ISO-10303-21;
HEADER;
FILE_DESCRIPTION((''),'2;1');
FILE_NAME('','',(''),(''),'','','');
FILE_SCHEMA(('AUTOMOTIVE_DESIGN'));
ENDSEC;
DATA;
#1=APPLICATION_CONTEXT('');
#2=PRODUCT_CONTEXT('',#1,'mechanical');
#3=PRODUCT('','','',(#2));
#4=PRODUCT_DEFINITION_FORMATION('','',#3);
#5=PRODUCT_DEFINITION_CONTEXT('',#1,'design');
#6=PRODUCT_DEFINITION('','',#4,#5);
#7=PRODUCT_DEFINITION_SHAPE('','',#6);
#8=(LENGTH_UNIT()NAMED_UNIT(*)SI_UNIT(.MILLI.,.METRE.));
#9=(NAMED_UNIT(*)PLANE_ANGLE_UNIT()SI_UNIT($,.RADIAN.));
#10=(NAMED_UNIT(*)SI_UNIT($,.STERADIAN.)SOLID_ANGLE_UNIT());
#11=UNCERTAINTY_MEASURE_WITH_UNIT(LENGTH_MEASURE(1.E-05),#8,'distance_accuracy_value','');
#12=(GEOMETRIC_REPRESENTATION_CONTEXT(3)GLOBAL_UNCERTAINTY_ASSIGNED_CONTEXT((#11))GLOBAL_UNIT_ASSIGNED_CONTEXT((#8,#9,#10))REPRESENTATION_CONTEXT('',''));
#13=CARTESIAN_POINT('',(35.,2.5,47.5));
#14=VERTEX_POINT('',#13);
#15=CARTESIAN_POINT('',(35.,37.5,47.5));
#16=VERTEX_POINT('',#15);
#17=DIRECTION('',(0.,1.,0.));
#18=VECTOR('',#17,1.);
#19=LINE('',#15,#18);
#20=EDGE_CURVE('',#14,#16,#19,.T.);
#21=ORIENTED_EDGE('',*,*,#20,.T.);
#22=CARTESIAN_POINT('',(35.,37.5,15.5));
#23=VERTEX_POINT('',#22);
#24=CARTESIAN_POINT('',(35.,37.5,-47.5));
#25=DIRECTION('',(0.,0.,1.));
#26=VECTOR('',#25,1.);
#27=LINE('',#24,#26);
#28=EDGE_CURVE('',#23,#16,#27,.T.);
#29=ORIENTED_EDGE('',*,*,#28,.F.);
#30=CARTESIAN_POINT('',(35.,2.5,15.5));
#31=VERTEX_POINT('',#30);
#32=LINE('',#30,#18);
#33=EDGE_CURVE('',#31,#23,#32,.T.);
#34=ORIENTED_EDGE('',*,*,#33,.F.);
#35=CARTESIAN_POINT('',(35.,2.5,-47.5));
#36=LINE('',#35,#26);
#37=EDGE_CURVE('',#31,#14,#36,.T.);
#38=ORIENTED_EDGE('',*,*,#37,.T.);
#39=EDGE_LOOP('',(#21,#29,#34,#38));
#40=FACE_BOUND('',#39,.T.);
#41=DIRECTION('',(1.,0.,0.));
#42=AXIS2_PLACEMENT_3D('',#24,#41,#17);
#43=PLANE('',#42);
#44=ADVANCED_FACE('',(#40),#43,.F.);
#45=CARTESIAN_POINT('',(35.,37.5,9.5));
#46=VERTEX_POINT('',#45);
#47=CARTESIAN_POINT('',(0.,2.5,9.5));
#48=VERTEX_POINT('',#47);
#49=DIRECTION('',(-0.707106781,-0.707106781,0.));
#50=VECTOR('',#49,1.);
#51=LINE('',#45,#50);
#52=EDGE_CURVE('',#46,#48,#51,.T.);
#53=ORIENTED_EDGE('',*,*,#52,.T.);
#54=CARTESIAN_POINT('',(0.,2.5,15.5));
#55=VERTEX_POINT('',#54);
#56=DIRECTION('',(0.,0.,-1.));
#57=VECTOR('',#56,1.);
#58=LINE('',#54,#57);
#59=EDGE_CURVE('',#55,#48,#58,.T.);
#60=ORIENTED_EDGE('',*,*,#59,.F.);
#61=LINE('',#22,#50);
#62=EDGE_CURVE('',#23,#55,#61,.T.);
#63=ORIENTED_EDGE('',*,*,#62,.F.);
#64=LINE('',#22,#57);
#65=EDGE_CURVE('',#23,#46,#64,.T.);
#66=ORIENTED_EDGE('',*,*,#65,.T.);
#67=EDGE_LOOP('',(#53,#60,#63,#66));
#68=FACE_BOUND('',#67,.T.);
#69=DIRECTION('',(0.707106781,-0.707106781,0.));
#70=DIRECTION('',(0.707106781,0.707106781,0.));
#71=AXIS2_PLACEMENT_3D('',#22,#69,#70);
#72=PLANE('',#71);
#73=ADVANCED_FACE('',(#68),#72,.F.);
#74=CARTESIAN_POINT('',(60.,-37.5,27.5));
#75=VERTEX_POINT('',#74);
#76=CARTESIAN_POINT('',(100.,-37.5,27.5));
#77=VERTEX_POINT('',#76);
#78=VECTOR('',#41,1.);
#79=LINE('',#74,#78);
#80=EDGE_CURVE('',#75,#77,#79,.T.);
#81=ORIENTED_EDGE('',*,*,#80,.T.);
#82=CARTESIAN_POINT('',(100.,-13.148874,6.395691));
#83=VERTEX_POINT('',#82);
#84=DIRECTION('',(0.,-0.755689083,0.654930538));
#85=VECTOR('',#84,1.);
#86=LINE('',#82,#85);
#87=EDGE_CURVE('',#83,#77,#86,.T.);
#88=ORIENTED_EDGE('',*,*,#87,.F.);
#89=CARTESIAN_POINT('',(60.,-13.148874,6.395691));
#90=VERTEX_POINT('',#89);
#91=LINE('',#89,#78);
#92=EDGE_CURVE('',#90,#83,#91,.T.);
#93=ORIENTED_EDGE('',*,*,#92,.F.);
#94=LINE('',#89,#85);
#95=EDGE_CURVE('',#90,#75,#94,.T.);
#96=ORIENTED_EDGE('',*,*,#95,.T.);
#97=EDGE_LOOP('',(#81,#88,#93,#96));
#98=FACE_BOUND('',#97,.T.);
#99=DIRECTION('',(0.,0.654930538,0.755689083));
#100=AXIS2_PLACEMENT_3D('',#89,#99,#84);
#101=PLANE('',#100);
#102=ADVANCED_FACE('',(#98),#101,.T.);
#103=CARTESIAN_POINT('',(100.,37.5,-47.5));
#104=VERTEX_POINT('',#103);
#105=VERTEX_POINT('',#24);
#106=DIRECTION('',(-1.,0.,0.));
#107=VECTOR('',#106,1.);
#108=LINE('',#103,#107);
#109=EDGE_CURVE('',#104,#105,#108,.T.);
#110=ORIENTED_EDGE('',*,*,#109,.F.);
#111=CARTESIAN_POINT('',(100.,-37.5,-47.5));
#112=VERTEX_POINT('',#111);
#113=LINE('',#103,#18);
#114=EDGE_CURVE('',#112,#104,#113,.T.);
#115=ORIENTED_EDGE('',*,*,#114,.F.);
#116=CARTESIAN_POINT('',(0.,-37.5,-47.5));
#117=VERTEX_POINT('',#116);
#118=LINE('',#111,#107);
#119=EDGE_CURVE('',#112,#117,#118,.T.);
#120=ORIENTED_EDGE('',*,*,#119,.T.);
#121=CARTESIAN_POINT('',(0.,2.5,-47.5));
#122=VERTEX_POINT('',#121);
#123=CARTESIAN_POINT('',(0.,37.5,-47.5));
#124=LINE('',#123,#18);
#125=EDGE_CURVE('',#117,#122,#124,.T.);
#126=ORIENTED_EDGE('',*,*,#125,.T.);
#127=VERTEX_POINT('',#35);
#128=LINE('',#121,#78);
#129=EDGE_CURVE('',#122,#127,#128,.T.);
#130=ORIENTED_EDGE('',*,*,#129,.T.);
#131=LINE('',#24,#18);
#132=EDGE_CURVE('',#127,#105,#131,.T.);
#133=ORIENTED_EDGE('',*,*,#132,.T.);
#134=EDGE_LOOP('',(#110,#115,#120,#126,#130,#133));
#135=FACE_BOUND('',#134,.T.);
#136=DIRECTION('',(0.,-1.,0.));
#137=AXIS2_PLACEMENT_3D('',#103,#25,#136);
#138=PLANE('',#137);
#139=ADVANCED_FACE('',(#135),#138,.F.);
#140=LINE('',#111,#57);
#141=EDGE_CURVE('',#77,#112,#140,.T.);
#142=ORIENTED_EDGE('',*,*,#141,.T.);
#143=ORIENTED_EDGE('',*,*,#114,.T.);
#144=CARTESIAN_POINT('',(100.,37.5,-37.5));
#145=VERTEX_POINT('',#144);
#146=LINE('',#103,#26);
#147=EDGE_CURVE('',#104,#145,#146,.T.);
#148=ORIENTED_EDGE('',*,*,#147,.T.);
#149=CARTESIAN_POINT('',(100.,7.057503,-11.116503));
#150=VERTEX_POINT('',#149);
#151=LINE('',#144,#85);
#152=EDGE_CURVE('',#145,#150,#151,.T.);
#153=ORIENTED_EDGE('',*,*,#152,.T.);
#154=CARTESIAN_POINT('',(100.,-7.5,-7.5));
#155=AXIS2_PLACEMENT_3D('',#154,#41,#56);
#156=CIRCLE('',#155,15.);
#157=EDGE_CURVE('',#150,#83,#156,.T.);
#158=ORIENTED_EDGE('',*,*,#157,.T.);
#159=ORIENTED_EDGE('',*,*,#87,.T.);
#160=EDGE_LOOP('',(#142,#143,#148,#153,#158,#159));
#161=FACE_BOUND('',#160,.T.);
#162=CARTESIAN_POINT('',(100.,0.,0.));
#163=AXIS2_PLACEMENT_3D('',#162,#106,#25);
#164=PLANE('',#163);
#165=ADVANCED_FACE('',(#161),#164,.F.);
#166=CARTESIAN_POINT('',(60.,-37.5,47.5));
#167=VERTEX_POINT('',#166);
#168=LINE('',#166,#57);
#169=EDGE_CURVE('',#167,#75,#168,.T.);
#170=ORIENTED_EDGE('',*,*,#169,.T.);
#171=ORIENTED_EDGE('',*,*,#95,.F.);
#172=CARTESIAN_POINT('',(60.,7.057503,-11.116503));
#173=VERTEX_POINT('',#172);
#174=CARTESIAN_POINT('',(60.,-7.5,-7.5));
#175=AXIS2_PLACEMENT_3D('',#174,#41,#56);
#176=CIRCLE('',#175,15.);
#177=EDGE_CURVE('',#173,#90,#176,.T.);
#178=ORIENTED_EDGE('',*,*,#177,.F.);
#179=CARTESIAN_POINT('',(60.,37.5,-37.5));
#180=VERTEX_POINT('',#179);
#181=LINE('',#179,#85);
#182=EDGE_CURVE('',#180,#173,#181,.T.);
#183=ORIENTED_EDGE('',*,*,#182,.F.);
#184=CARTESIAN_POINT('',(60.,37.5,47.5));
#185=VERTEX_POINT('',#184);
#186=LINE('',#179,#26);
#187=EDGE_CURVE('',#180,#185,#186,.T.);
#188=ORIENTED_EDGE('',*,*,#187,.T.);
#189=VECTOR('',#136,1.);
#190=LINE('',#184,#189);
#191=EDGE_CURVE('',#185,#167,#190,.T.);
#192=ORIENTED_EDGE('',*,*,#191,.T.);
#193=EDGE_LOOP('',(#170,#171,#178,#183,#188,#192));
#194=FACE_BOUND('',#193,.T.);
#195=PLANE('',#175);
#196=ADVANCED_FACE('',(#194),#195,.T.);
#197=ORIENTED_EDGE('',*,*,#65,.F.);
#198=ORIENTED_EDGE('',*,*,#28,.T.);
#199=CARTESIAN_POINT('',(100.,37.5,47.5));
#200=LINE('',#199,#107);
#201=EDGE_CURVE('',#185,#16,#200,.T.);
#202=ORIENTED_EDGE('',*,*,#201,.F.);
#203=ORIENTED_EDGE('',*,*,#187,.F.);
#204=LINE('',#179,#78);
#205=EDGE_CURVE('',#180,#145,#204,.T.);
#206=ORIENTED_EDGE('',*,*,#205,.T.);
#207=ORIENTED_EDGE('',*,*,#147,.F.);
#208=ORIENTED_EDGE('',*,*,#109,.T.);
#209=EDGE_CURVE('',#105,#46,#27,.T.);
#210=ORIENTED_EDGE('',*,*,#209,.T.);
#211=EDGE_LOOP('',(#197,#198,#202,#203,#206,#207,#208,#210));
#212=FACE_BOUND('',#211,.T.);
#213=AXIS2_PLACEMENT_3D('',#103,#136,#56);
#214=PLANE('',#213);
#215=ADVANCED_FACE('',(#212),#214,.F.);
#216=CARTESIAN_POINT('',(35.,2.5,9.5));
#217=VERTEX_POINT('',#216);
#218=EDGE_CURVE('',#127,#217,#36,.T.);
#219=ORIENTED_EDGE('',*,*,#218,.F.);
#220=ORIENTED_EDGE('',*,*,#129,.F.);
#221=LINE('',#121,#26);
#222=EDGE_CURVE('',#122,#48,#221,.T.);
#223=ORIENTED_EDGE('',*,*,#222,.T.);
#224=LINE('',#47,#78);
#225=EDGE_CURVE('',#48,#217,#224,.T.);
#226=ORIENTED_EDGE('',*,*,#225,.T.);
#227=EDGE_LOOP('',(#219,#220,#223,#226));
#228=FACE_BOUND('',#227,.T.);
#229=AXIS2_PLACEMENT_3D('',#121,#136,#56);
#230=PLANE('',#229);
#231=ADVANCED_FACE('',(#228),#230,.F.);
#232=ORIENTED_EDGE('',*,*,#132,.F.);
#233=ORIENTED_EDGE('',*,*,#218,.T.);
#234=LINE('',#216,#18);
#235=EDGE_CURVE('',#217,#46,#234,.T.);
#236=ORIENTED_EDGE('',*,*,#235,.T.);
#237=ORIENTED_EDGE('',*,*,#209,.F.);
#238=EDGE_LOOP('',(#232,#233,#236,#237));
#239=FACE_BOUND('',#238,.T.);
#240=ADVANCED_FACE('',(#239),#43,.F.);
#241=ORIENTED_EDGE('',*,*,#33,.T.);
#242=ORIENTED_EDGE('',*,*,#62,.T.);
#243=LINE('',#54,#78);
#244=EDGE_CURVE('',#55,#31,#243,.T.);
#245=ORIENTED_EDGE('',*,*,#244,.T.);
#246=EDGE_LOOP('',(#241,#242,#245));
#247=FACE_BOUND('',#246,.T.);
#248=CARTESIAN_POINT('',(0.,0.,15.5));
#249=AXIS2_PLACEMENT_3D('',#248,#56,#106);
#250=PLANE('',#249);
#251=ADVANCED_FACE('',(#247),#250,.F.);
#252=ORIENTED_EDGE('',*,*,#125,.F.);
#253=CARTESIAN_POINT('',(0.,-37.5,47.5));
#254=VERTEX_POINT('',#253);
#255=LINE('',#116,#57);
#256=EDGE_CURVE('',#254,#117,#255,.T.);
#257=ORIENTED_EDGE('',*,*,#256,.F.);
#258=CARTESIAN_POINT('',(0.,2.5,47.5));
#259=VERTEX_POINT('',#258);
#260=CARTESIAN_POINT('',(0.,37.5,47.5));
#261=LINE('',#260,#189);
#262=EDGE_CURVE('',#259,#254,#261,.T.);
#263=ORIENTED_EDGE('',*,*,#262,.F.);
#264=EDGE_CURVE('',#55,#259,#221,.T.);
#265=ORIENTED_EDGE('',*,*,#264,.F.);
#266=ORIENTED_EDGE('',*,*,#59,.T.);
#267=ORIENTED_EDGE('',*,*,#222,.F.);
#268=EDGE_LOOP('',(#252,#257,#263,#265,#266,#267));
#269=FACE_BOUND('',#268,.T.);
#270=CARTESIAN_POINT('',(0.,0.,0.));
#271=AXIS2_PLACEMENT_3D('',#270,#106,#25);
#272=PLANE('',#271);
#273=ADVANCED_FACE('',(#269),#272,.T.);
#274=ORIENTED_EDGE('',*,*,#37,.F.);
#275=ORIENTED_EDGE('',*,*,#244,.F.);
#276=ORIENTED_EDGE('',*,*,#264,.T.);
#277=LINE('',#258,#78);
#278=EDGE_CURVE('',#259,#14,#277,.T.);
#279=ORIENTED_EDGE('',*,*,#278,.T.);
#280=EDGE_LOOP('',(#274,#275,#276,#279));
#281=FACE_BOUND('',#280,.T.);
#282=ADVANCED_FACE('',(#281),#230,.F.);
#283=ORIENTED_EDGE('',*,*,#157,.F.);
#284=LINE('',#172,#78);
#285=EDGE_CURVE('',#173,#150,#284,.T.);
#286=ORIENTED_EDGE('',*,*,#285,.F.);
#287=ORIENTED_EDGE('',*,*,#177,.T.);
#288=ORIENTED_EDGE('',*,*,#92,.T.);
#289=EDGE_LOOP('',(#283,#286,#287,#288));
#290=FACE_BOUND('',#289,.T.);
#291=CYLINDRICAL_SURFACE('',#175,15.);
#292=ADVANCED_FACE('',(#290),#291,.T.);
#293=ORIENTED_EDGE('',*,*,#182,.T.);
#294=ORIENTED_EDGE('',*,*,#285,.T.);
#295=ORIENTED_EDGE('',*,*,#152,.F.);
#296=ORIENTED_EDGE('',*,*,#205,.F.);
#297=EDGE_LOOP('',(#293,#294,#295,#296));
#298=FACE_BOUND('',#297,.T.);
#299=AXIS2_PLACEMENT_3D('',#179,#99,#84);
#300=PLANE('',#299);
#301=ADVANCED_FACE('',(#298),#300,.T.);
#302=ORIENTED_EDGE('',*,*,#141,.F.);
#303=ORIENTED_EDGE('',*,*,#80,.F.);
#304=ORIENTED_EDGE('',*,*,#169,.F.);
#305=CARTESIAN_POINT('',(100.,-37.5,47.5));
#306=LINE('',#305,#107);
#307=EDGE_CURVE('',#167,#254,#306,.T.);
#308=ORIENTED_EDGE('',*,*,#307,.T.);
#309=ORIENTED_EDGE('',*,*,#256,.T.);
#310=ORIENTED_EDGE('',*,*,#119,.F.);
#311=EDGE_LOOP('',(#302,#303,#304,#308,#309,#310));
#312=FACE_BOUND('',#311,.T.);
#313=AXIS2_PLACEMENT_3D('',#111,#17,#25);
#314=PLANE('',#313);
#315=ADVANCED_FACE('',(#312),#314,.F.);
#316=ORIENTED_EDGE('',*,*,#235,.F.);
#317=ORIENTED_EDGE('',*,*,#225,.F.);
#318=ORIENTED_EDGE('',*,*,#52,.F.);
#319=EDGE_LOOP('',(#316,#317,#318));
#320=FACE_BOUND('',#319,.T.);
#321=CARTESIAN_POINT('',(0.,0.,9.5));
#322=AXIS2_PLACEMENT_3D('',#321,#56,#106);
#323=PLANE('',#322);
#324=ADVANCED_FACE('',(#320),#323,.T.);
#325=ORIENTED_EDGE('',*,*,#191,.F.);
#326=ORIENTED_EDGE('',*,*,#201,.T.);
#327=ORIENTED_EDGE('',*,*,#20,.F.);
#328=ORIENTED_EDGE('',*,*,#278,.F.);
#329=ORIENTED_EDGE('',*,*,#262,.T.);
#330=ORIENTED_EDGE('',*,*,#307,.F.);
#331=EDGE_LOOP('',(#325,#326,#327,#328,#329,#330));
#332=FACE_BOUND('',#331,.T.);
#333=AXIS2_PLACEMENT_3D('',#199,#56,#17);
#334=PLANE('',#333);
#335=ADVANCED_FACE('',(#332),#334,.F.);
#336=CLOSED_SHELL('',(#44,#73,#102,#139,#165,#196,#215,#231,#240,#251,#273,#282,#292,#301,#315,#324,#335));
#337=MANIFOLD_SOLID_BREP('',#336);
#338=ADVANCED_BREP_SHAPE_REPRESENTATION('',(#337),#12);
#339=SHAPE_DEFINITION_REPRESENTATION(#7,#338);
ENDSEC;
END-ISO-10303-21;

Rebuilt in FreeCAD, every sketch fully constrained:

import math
import FreeCAD as App
import Part
import Sketcher

doc = App.newDocument("Part")
params = doc.addObject("Spreadsheet::Sheet", "Params")
for row, (alias, value) in enumerate([
    ("sketch1_width", "75 mm"),
    ("sketch1_height", "95 mm"),
    ("pad1_length", "100 mm"),
    ("sketch2_radius", "15 mm"),
    ("sketch2_width", "75 mm"),
    ("sketch2_height", "85 mm"),
    ("sketch2_height2", "20 mm"),
    ("pocket1_length", "40 mm"),
    ("sketch3_width", "35 mm"),
    ("sketch4_width", "35 mm"),
    ("pad2_length", "6 mm"),
], start=1):
    params.set(f"A{row}", alias)
    params.set(f"B{row}", "=" + value)
    params.setAlias(f"B{row}", alias)

body = doc.addObject("PartDesign::Body", "Body")

# Sketch on YZ plane
sketch1 = doc.addObject("Sketcher::SketchObject", "Sketch")
body.addObject(sketch1)
sketch1.AttachmentSupport = (doc.YZ_Plane, [""])
sketch1.MapMode = "FlatFace"
sketch1.addGeometry(Part.LineSegment(App.Vector(37.5, 47.5, 0), App.Vector(-37.5, 47.5, 0)), False)
sketch1.addGeometry(Part.LineSegment(App.Vector(-37.5, 47.5, 0), App.Vector(-37.5, -47.5, 0)), False)
sketch1.addGeometry(Part.LineSegment(App.Vector(-37.5, -47.5, 0), App.Vector(37.5, -47.5, 0)), False)
sketch1.addGeometry(Part.LineSegment(App.Vector(37.5, -47.5, 0), App.Vector(37.5, 47.5, 0)), False)
sketch1.addConstraint(Sketcher.Constraint("Coincident", 0, 2, 1, 1))
sketch1.addConstraint(Sketcher.Constraint("Coincident", 1, 2, 2, 1))
sketch1.addConstraint(Sketcher.Constraint("Coincident", 2, 2, 3, 1))
sketch1.addConstraint(Sketcher.Constraint("Coincident", 3, 2, 0, 1))
sketch1.addConstraint(Sketcher.Constraint("Horizontal", 0))
sketch1.addConstraint(Sketcher.Constraint("Vertical", 1))
sketch1.addConstraint(Sketcher.Constraint("Horizontal", 2))
sketch1.addConstraint(Sketcher.Constraint("Vertical", 3))
sketch1.addConstraint(Sketcher.Constraint("Symmetric", 0, 2, 2, 2, -1, 1))
sketch1.addConstraint(Sketcher.Constraint("DistanceX", 0, 2, 0, 1, 75.0))
sketch1.addConstraint(Sketcher.Constraint("DistanceY", 1, 2, 1, 1, 95.0))
sketch1.setExpression("Constraints[9]", "Params.sketch1_width")
sketch1.setExpression("Constraints[10]", "Params.sketch1_height")
pad1 = doc.addObject("PartDesign::Pad", "Pad")
body.addObject(pad1)
pad1.Profile = sketch1
pad1.setExpression("Length", "Params.pad1_length")

# Sketch on YZ plane
sketch2 = doc.addObject("Sketcher::SketchObject", "Sketch001")
body.addObject(sketch2)
sketch2.AttachmentSupport = (doc.YZ_Plane, [""])
sketch2.MapMode = "FlatFace"
sketch2.AttachmentOffset = App.Placement(App.Vector(0, 0, 100), App.Rotation())
sketch2.addGeometry(Part.LineSegment(App.Vector(7.057503, -11.116503, 0), App.Vector(37.5, -37.5, 0)), False)
sketch2.addGeometry(Part.LineSegment(App.Vector(37.5, -37.5, 0), App.Vector(37.5, 47.5, 0)), False)
sketch2.addGeometry(Part.LineSegment(App.Vector(37.5, 47.5, 0), App.Vector(-37.5, 47.5, 0)), False)
sketch2.addGeometry(Part.LineSegment(App.Vector(-37.5, 47.5, 0), App.Vector(-37.5, 27.5, 0)), False)
sketch2.addGeometry(Part.LineSegment(App.Vector(-37.5, 27.5, 0), App.Vector(-13.148874, 6.395691, 0)), False)
sketch2.addGeometry(Part.ArcOfCircle(Part.Circle(App.Vector(-7.5, -7.5, 0), App.Vector(0, 0, 1), 15), math.radians(-13.951484), math.radians(112.122718)), False)
sketch2.addConstraint(Sketcher.Constraint("Coincident", 0, 2, 1, 1))
sketch2.addConstraint(Sketcher.Constraint("Coincident", 1, 2, 2, 1))
sketch2.addConstraint(Sketcher.Constraint("Coincident", 2, 2, 3, 1))
sketch2.addConstraint(Sketcher.Constraint("Coincident", 3, 2, 4, 1))
sketch2.addConstraint(Sketcher.Constraint("Coincident", 4, 2, 5, 2))
sketch2.addConstraint(Sketcher.Constraint("Coincident", 5, 1, 0, 1))
sketch2.addConstraint(Sketcher.Constraint("Vertical", 1))
sketch2.addConstraint(Sketcher.Constraint("Horizontal", 2))
sketch2.addConstraint(Sketcher.Constraint("Vertical", 3))
sketch2.addConstraint(Sketcher.Constraint("Parallel", 0, 4))
sketch2.addConstraint(Sketcher.Constraint("Radius", 5, 15.0))
sketch2.addConstraint(Sketcher.Constraint("DistanceX", 2, 2, 2, 1, 75.0))
sketch2.addConstraint(Sketcher.Constraint("DistanceY", 1, 1, 1, 2, 85.0))
sketch2.addConstraint(Sketcher.Constraint("DistanceY", 3, 2, 3, 1, 20.0))
sketch2.addConstraint(Sketcher.Constraint("DistanceX", 5, 3, 0, 2, 45.0))
sketch2.addConstraint(Sketcher.Constraint("DistanceY", 0, 2, 5, 3, 30.0))
sketch2.addConstraint(Sketcher.Constraint("DistanceX", 5, 3, -1, 1, 7.5))
sketch2.addConstraint(Sketcher.Constraint("DistanceY", 5, 3, -1, 1, 7.5))
sketch2.addConstraint(Sketcher.Constraint("Distance", 0, 40.28442))
sketch2.setExpression("Constraints[10]", "Params.sketch2_radius")
sketch2.setExpression("Constraints[11]", "Params.sketch2_width")
sketch2.setExpression("Constraints[12]", "Params.sketch2_height")
sketch2.setExpression("Constraints[13]", "Params.sketch2_height2")
pocket1 = doc.addObject("PartDesign::Pocket", "Pocket")
body.addObject(pocket1)
pocket1.Profile = sketch2
pocket1.setExpression("Length", "Params.pocket1_length")

# Sketch on XY plane
sketch3 = doc.addObject("Sketcher::SketchObject", "Sketch002")
body.addObject(sketch3)
sketch3.AttachmentSupport = (doc.XY_Plane, [""])
sketch3.MapMode = "FlatFace"
sketch3.AttachmentOffset = App.Placement(App.Vector(0, 0, 47.5), App.Rotation())
sketch3.addGeometry(Part.LineSegment(App.Vector(0, 37.5, 0), App.Vector(0, 2.5, 0)), False)
sketch3.addGeometry(Part.LineSegment(App.Vector(0, 2.5, 0), App.Vector(35, 2.5, 0)), False)
sketch3.addGeometry(Part.LineSegment(App.Vector(35, 2.5, 0), App.Vector(35, 37.5, 0)), False)
sketch3.addGeometry(Part.LineSegment(App.Vector(35, 37.5, 0), App.Vector(0, 37.5, 0)), False)
sketch3.addConstraint(Sketcher.Constraint("Coincident", 0, 2, 1, 1))
sketch3.addConstraint(Sketcher.Constraint("Coincident", 1, 2, 2, 1))
sketch3.addConstraint(Sketcher.Constraint("Coincident", 2, 2, 3, 1))
sketch3.addConstraint(Sketcher.Constraint("Coincident", 3, 2, 0, 1))
sketch3.addConstraint(Sketcher.Constraint("Vertical", 0))
sketch3.addConstraint(Sketcher.Constraint("Horizontal", 1))
sketch3.addConstraint(Sketcher.Constraint("Vertical", 2))
sketch3.addConstraint(Sketcher.Constraint("Horizontal", 3))
sketch3.addConstraint(Sketcher.Constraint("PointOnObject", 0, 2, -2))
sketch3.addConstraint(Sketcher.Constraint("Equal", 3, 0))
sketch3.addConstraint(Sketcher.Constraint("DistanceX", 1, 1, 1, 2, 35.0))
sketch3.addConstraint(Sketcher.Constraint("DistanceY", -1, 1, 0, 2, 2.5))
sketch3.setExpression("Constraints[10]", "Params.sketch3_width")
pocket2 = doc.addObject("PartDesign::Pocket", "Pocket001")
body.addObject(pocket2)
pocket2.Profile = sketch3
pocket2.Type = "ThroughAll"

# Sketch on XY plane
sketch4 = doc.addObject("Sketcher::SketchObject", "Sketch003")
body.addObject(sketch4)
sketch4.AttachmentSupport = (doc.XY_Plane, [""])
sketch4.MapMode = "FlatFace"
sketch4.AttachmentOffset = App.Placement(App.Vector(0, 0, 9.5), App.Rotation())
sketch4.addGeometry(Part.LineSegment(App.Vector(35, 37.5, 0), App.Vector(0, 2.5, 0)), False)
sketch4.addGeometry(Part.LineSegment(App.Vector(0, 2.5, 0), App.Vector(35, 2.5, 0)), False)
sketch4.addGeometry(Part.LineSegment(App.Vector(35, 2.5, 0), App.Vector(35, 37.5, 0)), False)
sketch4.addConstraint(Sketcher.Constraint("Coincident", 0, 2, 1, 1))
sketch4.addConstraint(Sketcher.Constraint("Coincident", 1, 2, 2, 1))
sketch4.addConstraint(Sketcher.Constraint("Coincident", 2, 2, 0, 1))
sketch4.addConstraint(Sketcher.Constraint("Horizontal", 1))
sketch4.addConstraint(Sketcher.Constraint("Vertical", 2))
sketch4.addConstraint(Sketcher.Constraint("PointOnObject", 0, 2, -2))
sketch4.addConstraint(Sketcher.Constraint("Equal", 1, 2))
sketch4.addConstraint(Sketcher.Constraint("DistanceX", 1, 1, 1, 2, 35.0))
sketch4.addConstraint(Sketcher.Constraint("DistanceY", -1, 1, 0, 2, 2.5))
sketch4.setExpression("Constraints[7]", "Params.sketch4_width")
pad2 = doc.addObject("PartDesign::Pad", "Pad001")
body.addObject(pad2)
pad2.Profile = sketch4
pad2.setExpression("Length", "Params.pad2_length")

doc.recompute()
